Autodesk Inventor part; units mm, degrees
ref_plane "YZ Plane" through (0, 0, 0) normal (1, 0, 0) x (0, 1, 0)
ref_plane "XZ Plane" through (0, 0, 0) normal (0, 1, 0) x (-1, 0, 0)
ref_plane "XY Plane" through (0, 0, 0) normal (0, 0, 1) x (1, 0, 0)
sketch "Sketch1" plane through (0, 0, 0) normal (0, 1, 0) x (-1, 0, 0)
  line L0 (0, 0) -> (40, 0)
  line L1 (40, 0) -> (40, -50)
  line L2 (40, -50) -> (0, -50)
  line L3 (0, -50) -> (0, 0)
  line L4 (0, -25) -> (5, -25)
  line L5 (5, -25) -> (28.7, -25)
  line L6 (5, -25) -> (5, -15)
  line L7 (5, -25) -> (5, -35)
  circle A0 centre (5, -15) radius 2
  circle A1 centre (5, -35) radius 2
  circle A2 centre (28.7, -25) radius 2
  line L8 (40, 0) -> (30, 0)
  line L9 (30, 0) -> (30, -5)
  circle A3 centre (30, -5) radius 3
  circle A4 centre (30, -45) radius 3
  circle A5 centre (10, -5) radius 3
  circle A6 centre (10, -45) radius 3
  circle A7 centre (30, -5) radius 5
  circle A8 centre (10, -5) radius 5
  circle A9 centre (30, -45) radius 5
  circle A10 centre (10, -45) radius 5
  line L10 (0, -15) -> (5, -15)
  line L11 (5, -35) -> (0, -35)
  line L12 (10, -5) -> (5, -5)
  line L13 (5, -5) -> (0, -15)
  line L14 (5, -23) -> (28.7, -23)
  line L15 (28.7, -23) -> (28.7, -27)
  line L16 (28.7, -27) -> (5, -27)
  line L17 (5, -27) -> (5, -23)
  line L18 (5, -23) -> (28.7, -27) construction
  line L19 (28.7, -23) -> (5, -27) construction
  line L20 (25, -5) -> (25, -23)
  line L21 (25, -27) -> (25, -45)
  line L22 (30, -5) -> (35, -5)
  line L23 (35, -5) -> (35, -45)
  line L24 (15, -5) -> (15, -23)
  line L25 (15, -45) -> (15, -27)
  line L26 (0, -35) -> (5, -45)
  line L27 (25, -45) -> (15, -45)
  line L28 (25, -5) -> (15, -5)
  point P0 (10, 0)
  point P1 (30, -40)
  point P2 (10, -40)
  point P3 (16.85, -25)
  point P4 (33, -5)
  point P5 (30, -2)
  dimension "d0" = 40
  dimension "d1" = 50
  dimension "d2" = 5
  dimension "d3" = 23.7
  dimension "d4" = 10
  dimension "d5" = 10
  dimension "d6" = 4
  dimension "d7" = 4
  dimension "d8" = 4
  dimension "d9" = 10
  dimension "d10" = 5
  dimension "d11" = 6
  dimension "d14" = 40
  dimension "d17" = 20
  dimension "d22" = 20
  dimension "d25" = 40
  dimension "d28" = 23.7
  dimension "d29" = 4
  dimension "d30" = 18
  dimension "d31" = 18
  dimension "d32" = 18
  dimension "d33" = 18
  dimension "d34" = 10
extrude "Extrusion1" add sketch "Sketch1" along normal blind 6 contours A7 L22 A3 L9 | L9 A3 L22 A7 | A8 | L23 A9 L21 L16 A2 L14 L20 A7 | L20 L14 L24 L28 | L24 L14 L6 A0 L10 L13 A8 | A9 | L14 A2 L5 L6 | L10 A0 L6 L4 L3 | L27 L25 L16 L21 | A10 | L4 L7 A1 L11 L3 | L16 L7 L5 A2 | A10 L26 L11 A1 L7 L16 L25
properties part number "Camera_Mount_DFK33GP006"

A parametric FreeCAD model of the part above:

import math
import FreeCAD as App
import Part
import Sketcher

V = App.Vector

doc = App.newDocument("Part")
body = doc.addObject("PartDesign::Body", "Body")

# Sketch on XZ plane
sketch1 = body.newObject("Sketcher::SketchObject", "Sketch")
sketch1.AttachmentSupport = (doc.getObject("XZ_Plane"), [""])
sketch1.MapMode = "FlatFace"
sketch1.addGeometry([
    Part.ArcOfCircle(Part.Circle(V(-30, -5, 0), V(0, 0, 1), 5), math.radians(0), math.radians(180)),  # 0
    Part.LineSegment(V(-25, -5, 0), V(-15, -5, 0)),  # 1
    Part.ArcOfCircle(Part.Circle(V(-10, -5, 0), V(0, 0, 1), 5), math.radians(0), math.radians(180)),  # 2
    Part.LineSegment(V(-5, -5, 0), V(0, -15, 0)),  # 3
    Part.LineSegment(V(0, -15, 0), V(0, -35, 0)),  # 4
    Part.LineSegment(V(0, -35, 0), V(-5, -45, 0)),  # 5
    Part.ArcOfCircle(Part.Circle(V(-10, -45, 0), V(0, 0, 1), 5), math.radians(180), math.radians(360)),  # 6
    Part.LineSegment(V(-15, -45, 0), V(-25, -45, 0)),  # 7
    Part.ArcOfCircle(Part.Circle(V(-30, -45, 0), V(0, 0, 1), 5), math.radians(180), math.radians(360)),  # 8
    Part.LineSegment(V(-35, -45, 0), V(-35, -5, 0)),  # 9
    Part.Circle(V(-30, -5, 0), V(0, 0, 1), 3),  # 10
    Part.Circle(V(-28.7, -25, 0), V(0, 0, 1), 2),  # 11
    Part.Circle(V(-30, -45, 0), V(0, 0, 1), 3),  # 12
    Part.Circle(V(-5, -35, 0), V(0, 0, 1), 2),  # 13
    Part.Circle(V(-5, -15, 0), V(0, 0, 1), 2),  # 14
    Part.Circle(V(-10, -45, 0), V(0, 0, 1), 3),  # 15
    Part.Circle(V(-10, -5, 0), V(0, 0, 1), 3),  # 16
], False)
sketch1.addConstraint([
    Sketcher.Constraint("Coincident", 0, 1, 1, 1),
    Sketcher.Constraint("Coincident", 1, 2, 2, 2),
    Sketcher.Constraint("Coincident", 2, 1, 3, 1),
    Sketcher.Constraint("Coincident", 3, 2, 4, 1),
    Sketcher.Constraint("Coincident", 4, 2, 5, 1),
    Sketcher.Constraint("Coincident", 5, 2, 6, 2),
    Sketcher.Constraint("Coincident", 6, 1, 7, 1),
    Sketcher.Constraint("Coincident", 7, 2, 8, 2),
    Sketcher.Constraint("Tangent", 8, 1, 9, 1),
    Sketcher.Constraint("Tangent", 9, 2, 0, 2),
    Sketcher.Constraint("Horizontal", 1),
    Sketcher.Constraint("Vertical", 4),
    Sketcher.Constraint("Horizontal", 7),
    Sketcher.Constraint("Vertical", 9),
    Sketcher.Constraint("Coincident", 10, 3, 0, 3),
    Sketcher.Constraint("Coincident", 12, 3, 8, 3),
    Sketcher.Constraint("Coincident", 15, 3, 6, 3),
    Sketcher.Constraint("Coincident", 16, 3, 2, 3),
    Sketcher.Constraint("Equal", 0, 2),
    Sketcher.Constraint("Equal", 2, 6),
    Sketcher.Constraint("Equal", 6, 8),
    Sketcher.Constraint("Equal", 10, 12),
    Sketcher.Constraint("Equal", 11, 13),
    Sketcher.Constraint("Equal", 13, 14),
    Sketcher.Constraint("Equal", 12, 15),
    Sketcher.Constraint("Equal", 15, 16),
    Sketcher.Constraint("PointOnObject", 3, 2, -2),
    Sketcher.Constraint("Horizontal", 0, 3, 2, 3),
    Sketcher.Constraint("Horizontal", 6, 3, 8, 3),
    Sketcher.Constraint("Horizontal", 16, 3, 0, 1),
    Sketcher.Constraint("Horizontal", 1, 2, 2, 1),
    Sketcher.Constraint("Horizontal", 14, 3, 3, 2),
    Sketcher.Constraint("Horizontal", 13, 3, 4, 2),
    Sketcher.Constraint("Horizontal", 15, 3, 5, 2),
    Sketcher.Constraint("Horizontal", 5, 2, 6, 1),
    Sketcher.Constraint("Vertical", 2, 3, 6, 3),
    Sketcher.Constraint("Vertical", 13, 3, 14, 3),
    Sketcher.Constraint("Vertical", 14, 3, 2, 1),
    Sketcher.Constraint("Equal", 3, 5),
    Sketcher.Constraint("Diameter", 10, 6.0),
    Sketcher.Constraint("Diameter", 11, 4.0),
    Sketcher.Constraint("Radius", 0, 5.0),
    Sketcher.Constraint("DistanceX", 1, 1, 1, 2, 10.0),
    Sketcher.Constraint("DistanceY", 4, 2, 4, 1, 20.0),
    Sketcher.Constraint("DistanceY", 9, 1, 9, 2, 40.0),
    Sketcher.Constraint("DistanceY", 0, 3, -1, 1, 5.0),
    Sketcher.Constraint("DistanceX", 2, 3, -1, 1, 10.0),
    Sketcher.Constraint("DistanceY", 11, 3, 0, 3, 20.0),
    Sketcher.Constraint("DistanceX", 11, 3, 13, 3, 23.7),
])
pad1 = body.newObject("PartDesign::Pad", "Pad")
pad1.Profile = sketch1
pad1.Length = 6
pad1.Reversed = True

doc.recompute()
